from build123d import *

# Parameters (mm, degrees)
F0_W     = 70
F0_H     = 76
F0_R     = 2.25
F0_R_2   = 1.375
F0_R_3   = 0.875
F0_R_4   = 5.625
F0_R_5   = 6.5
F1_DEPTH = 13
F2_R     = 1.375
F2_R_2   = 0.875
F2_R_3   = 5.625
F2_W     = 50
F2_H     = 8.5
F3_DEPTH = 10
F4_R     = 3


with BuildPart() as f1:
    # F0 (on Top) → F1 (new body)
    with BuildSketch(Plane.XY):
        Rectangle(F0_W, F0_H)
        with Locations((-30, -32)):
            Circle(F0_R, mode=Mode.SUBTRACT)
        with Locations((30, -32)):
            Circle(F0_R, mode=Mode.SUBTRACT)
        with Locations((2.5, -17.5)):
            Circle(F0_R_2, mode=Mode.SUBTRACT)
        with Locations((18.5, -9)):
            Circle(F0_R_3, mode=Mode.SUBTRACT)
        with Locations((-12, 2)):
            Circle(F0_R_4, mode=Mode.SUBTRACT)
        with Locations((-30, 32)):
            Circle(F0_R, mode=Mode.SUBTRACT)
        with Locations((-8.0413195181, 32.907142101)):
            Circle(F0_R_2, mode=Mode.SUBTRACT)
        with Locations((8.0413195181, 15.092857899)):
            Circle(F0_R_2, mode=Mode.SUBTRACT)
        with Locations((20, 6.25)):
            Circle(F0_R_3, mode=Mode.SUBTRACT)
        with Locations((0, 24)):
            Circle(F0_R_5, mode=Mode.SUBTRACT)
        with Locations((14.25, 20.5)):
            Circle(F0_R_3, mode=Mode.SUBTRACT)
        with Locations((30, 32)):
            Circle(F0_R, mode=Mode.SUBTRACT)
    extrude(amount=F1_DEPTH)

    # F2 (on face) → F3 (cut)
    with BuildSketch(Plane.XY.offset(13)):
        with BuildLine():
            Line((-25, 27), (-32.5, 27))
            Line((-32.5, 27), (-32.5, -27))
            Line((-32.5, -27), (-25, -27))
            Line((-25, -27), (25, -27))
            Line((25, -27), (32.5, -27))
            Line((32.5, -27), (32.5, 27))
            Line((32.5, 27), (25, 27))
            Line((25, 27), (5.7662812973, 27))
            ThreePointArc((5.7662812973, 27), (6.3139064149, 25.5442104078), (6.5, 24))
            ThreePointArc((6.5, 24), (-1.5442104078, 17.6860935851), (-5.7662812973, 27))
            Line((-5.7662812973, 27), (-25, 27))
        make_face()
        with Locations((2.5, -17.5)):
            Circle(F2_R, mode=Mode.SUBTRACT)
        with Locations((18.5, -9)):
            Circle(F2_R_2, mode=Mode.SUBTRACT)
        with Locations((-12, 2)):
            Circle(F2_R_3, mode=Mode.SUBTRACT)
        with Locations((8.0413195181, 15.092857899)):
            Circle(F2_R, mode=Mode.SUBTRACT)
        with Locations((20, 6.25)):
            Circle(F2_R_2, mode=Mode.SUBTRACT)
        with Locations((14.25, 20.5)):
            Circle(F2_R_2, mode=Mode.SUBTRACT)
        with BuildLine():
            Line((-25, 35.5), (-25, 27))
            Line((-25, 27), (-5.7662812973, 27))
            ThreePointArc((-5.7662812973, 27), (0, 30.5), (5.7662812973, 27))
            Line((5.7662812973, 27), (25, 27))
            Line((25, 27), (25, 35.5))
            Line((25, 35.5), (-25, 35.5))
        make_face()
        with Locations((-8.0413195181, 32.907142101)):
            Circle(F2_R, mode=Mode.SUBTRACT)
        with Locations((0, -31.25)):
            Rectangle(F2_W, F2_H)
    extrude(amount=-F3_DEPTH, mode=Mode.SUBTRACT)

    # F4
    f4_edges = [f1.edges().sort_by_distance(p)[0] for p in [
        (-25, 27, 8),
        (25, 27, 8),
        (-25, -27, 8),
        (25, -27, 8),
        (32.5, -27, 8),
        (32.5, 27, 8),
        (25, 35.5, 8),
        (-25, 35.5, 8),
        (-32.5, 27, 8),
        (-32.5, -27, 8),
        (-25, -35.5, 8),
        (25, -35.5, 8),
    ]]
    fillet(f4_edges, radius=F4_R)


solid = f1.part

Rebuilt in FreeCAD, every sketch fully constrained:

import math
import FreeCAD as App
import Part
import Sketcher
from FreeCAD import Vector


def edges_at(feature, points):
    """Names of the edges that pass closest to the given points."""
    edges = feature.Shape.Edges
    near = lambda p: min(range(len(edges)), key=lambda i: edges[i].distToShape(Part.Vertex(*p))[0])
    return sorted({f"Edge{near(p) + 1}" for p in points})


def add_polygon(sketch, points):
    """Adds a closed chain of lines whose ends are joined by coincident constraints."""
    first, n = sketch.GeometryCount, len(points)
    for a, b in zip(points, points[1:] + points[:1]):
        sketch.addGeometry(Part.LineSegment(App.Vector(*a, 0), App.Vector(*b, 0)), False)
    for i in range(n):
        sketch.addConstraint(Sketcher.Constraint("Coincident", first + i, 2, first + (i + 1) % n, 1))

doc = App.newDocument("Part")
body = doc.addObject("PartDesign::Body", "Body")

sketch1 = doc.addObject("Sketcher::SketchObject", "Sketch")
body.addObject(sketch1)
sketch1.AttachmentSupport = (doc.XY_Plane, [""])
sketch1.MapMode = "FlatFace"
add_polygon(sketch1, [(-35, 38), (-35, -38), (35, -38), (35, 38)])
sketch1.addGeometry(Part.Circle(Vector(-30, -32, 0), Vector(0, 0, 1), 2.2), False)
sketch1.addGeometry(Part.Circle(Vector(2.5, -17.5, 0), Vector(0, 0, 1), 1.4), False)
sketch1.addGeometry(Part.Circle(Vector(30, -32, 0), Vector(0, 0, 1), 2.2), False)
sketch1.addGeometry(Part.Circle(Vector(18.5, -9, 0), Vector(0, 0, 1), 0.9), False)
sketch1.addGeometry(Part.Circle(Vector(-12, 2, 0), Vector(0, 0, 1), 5.6), False)
sketch1.addGeometry(Part.Circle(Vector(-30, 32, 0), Vector(0, 0, 1), 2.2), False)
sketch1.addGeometry(Part.Circle(Vector(-8, 32.9, 0), Vector(0, 0, 1), 1.4), False)
sketch1.addGeometry(Part.Circle(Vector(8, 15.1, 0), Vector(0, 0, 1), 1.4), False)
sketch1.addGeometry(Part.Circle(Vector(20, 6.2, 0), Vector(0, 0, 1), 0.9), False)
sketch1.addGeometry(Part.Circle(Vector(0, 24, 0), Vector(0, 0, 1), 6.5), False)
sketch1.addGeometry(Part.Circle(Vector(14.2, 20.5, 0), Vector(0, 0, 1), 0.9), False)
sketch1.addGeometry(Part.Circle(Vector(30, 32, 0), Vector(0, 0, 1), 2.2), False)
sketch1.addConstraint([
    Sketcher.Constraint("Vertical", 0),
    Sketcher.Constraint("Horizontal", 1),
    Sketcher.Constraint("Vertical", 2),
    Sketcher.Constraint("Horizontal", 3),
    Sketcher.Constraint("Equal", 4, 6),
    Sketcher.Constraint("Equal", 6, 9),
    Sketcher.Constraint("Equal", 5, 10),
    Sketcher.Constraint("Equal", 10, 11),
    Sketcher.Constraint("Equal", 7, 12),
    Sketcher.Constraint("Equal", 12, 14),
    Sketcher.Constraint("Equal", 9, 15),
    Sketcher.Constraint("Symmetric", 6, 3, 9, 3, -1, 1),
    Sketcher.Constraint("Symmetric", 4, 3, 15, 3, -1, 1),
    Sketcher.Constraint("Symmetric", 0, 2, 2, 2, -1, 1),
    Sketcher.Constraint("Symmetric", 4, 3, 6, 3, -2),
    Sketcher.Constraint("PointOnObject", 13, 3, -2),
    Sketcher.Constraint("Diameter", 13, 13.0),
    Sketcher.Constraint("Diameter", 4, 4.5),
    Sketcher.Constraint("Diameter", 5, 2.75),
    Sketcher.Constraint("Diameter", 7, 1.75),
    Sketcher.Constraint("Diameter", 8, 11.25),
    Sketcher.Constraint("DistanceX", 1, 1, 1, 2, 70.0),
    Sketcher.Constraint("DistanceY", 0, 2, 0, 1, 76.0),
    Sketcher.Constraint("DistanceX", 4, 3, -1, 1, 30.0),
    Sketcher.Constraint("DistanceY", 4, 3, -1, 1, 32.0),
    Sketcher.Constraint("DistanceY", 7, 3, -1, 1, 9.0),
    Sketcher.Constraint("DistanceX", 8, 3, -1, 1, 12.0),
    Sketcher.Constraint("DistanceY", -1, 1, 8, 3, 2.0),
    Sketcher.Constraint("DistanceX", -1, 1, 12, 3, 20.0),
    Sketcher.Constraint("DistanceY", -1, 1, 13, 3, 24.0),
    Sketcher.Constraint("DistanceX", 5, 3, 7, 3, 16.0),
    Sketcher.Constraint("DistanceX", -1, 1, 5, 3, 2.5),
    Sketcher.Constraint("DistanceY", 5, 3, -1, 1, 17.5),
    Sketcher.Constraint("DistanceY", -1, 1, 14, 3, 20.5),
    Sketcher.Constraint("DistanceY", -1, 1, 12, 3, 6.25),
    Sketcher.Constraint("DistanceX", -1, 1, 14, 3, 14.25),
    Sketcher.Constraint("DistanceX", 10, 3, -1, 1, 8.04132),
    Sketcher.Constraint("DistanceX", -1, 1, 11, 3, 8.04132),
    Sketcher.Constraint("DistanceY", -1, 1, 10, 3, 32.907142),
    Sketcher.Constraint("DistanceY", -1, 1, 11, 3, 15.092858),
])
pad1 = doc.addObject("PartDesign::Pad", "Pad")
body.addObject(pad1)
pad1.Profile = sketch1
pad1.Length = 13

sketch2 = doc.addObject("Sketcher::SketchObject", "Sketch001")
body.addObject(sketch2)
sketch2.AttachmentSupport = (doc.XY_Plane, [""])
sketch2.MapMode = "FlatFace"
sketch2.AttachmentOffset = App.Placement(Vector(0, 0, 13), App.Rotation())
add_polygon(sketch2, [(-32.5, 27), (-32.5, -27), (-25, -27), (-25, -35.5), (25, -35.5), (25, -27), (32.5, -27), (32.5, 27), (25, 27), (25, 35.5), (-25, 35.5), (-25, 27)])
sketch2.addGeometry(Part.Circle(Vector(-12, 2, 0), Vector(0, 0, 1), 5.6), False)
sketch2.addGeometry(Part.Circle(Vector(2.5, -17.5, 0), Vector(0, 0, 1), 1.4), False)
sketch2.addGeometry(Part.Circle(Vector(18.5, -9, 0), Vector(0, 0, 1), 0.9), False)
sketch2.addGeometry(Part.Circle(Vector(20, 6.2, 0), Vector(0, 0, 1), 0.9), False)
sketch2.addGeometry(Part.Circle(Vector(-8, 32.9, 0), Vector(0, 0, 1), 1.4), False)
sketch2.addGeometry(Part.ArcOfCircle(Part.Circle(Vector(0, 24, 0), Vector(0, 0, 1), 6.5), math.radians(153), math.radians(360)), False)
sketch2.addGeometry(Part.ArcOfCircle(Part.Circle(Vector(0, 24, 0), Vector(0, 0, 1), 6.5), math.radians(27), math.radians(153)), False)
sketch2.addGeometry(Part.ArcOfCircle(Part.Circle(Vector(0, 24, 0), Vector(0, 0, 1), 6.5), math.radians(0), math.radians(27)), False)
sketch2.addGeometry(Part.Circle(Vector(8, 15.1, 0), Vector(0, 0, 1), 1.4), False)
sketch2.addGeometry(Part.Circle(Vector(14.2, 20.5, 0), Vector(0, 0, 1), 0.9), False)
sketch2.addConstraint([
    Sketcher.Constraint("Tangent", 17, 1, 18, 2),
    Sketcher.Constraint("Tangent", 18, 1, 19, 2),
    Sketcher.Constraint("Tangent", 19, 1, 17, 2),
    Sketcher.Constraint("Vertical", 0),
    Sketcher.Constraint("Horizontal", 1),
    Sketcher.Constraint("Vertical", 2),
    Sketcher.Constraint("Horizontal", 3),
    Sketcher.Constraint("Vertical", 4),
    Sketcher.Constraint("Horizontal", 5),
    Sketcher.Constraint("Vertical", 6),
    Sketcher.Constraint("Horizontal", 7),
    Sketcher.Constraint("Vertical", 8),
    Sketcher.Constraint("Horizontal", 9),
    Sketcher.Constraint("Vertical", 10),
    Sketcher.Constraint("Horizontal", 11),
    Sketcher.Constraint("Equal", 14, 15),
    Sketcher.Constraint("Equal", 13, 16),
    Sketcher.Constraint("Equal", 16, 20),
    Sketcher.Constraint("Equal", 15, 21),
    Sketcher.Constraint("Symmetric", 0, 2, 6, 2, -1, 1),
    Sketcher.Constraint("Symmetric", 2, 2, 8, 2, -1, 1),
    Sketcher.Constraint("Symmetric", 4, 2, 10, 2, -1, 1),
    Sketcher.Constraint("Symmetric", 1, 2, 4, 2, -2),
    Sketcher.Constraint("Symmetric", 17, 1, 18, 1, -2),
    Sketcher.Constraint("Horizontal", 11, 2, 17, 1),
    Sketcher.Constraint("Horizontal", 18, 3, 19, 1),
    Sketcher.Constraint("Radius", 17, 6.5),
    Sketcher.Constraint("Diameter", 12, 11.25),
    Sketcher.Constraint("Diameter", 13, 2.75),
    Sketcher.Constraint("Diameter", 14, 1.75),
    Sketcher.Constraint("DistanceX", 3, 1, 3, 2, 50.0),
    Sketcher.Constraint("DistanceY", 0, 2, 0, 1, 54.0),
    Sketcher.Constraint("DistanceX", 1, 1, 1, 2, 7.5),
    Sketcher.Constraint("DistanceY", 2, 2, 2, 1, 8.5),
    Sketcher.Constraint("DistanceX", 12, 3, -1, 1, 12.0),
    Sketcher.Constraint("DistanceY", -1, 1, 12, 3, 2.0),
    Sketcher.Constraint("DistanceY", 14, 3, -1, 1, 9.0),
    Sketcher.Constraint("DistanceX", -1, 1, 15, 3, 20.0),
    Sketcher.Constraint("DistanceY", -1, 1, 17, 3, 24.0),
    Sketcher.Constraint("DistanceX", 13, 3, 14, 3, 16.0),
    Sketcher.Constraint("DistanceX", 0, 2, 13, 3, 35.0),
    Sketcher.Constraint("DistanceY", 2, 2, 13, 3, 18.0),
    Sketcher.Constraint("DistanceY", 21, 3, 8, 2, 15.0),
    Sketcher.Constraint("DistanceY", -1, 1, 15, 3, 6.25),
    Sketcher.Constraint("DistanceX", -1, 1, 21, 3, 14.25),
    Sketcher.Constraint("DistanceX", 17, 1, 20, 3, 13.807601),
    Sketcher.Constraint("DistanceX", 16, 3, -1, 1, 8.04132),
    Sketcher.Constraint("DistanceY", -1, 1, 16, 3, 32.907142),
    Sketcher.Constraint("DistanceY", -1, 1, 20, 3, 15.092858),
])
pocket1 = doc.addObject("PartDesign::Pocket", "Pocket")
body.addObject(pocket1)
pocket1.Profile = sketch2
pocket1.Length = 10
doc.recompute()

fillet = doc.addObject("PartDesign::Fillet", "Fillet")
body.addObject(fillet)
fillet.Base = (pocket1, edges_at(pocket1, [
    (-25, 27, 8),
    (25, 27, 8),
    (-25, -27, 8),
    (25, -27, 8),
    (32.5, -27, 8),
    (32.5, 27, 8),
    (25, 35.5, 8),
    (-25, 35.5, 8),
    (-32.5, 27, 8),
    (-32.5, -27, 8),
    (-25, -35.5, 8),
    (25, -35.5, 8),
]))
fillet.Radius = 3

doc.recompute()
